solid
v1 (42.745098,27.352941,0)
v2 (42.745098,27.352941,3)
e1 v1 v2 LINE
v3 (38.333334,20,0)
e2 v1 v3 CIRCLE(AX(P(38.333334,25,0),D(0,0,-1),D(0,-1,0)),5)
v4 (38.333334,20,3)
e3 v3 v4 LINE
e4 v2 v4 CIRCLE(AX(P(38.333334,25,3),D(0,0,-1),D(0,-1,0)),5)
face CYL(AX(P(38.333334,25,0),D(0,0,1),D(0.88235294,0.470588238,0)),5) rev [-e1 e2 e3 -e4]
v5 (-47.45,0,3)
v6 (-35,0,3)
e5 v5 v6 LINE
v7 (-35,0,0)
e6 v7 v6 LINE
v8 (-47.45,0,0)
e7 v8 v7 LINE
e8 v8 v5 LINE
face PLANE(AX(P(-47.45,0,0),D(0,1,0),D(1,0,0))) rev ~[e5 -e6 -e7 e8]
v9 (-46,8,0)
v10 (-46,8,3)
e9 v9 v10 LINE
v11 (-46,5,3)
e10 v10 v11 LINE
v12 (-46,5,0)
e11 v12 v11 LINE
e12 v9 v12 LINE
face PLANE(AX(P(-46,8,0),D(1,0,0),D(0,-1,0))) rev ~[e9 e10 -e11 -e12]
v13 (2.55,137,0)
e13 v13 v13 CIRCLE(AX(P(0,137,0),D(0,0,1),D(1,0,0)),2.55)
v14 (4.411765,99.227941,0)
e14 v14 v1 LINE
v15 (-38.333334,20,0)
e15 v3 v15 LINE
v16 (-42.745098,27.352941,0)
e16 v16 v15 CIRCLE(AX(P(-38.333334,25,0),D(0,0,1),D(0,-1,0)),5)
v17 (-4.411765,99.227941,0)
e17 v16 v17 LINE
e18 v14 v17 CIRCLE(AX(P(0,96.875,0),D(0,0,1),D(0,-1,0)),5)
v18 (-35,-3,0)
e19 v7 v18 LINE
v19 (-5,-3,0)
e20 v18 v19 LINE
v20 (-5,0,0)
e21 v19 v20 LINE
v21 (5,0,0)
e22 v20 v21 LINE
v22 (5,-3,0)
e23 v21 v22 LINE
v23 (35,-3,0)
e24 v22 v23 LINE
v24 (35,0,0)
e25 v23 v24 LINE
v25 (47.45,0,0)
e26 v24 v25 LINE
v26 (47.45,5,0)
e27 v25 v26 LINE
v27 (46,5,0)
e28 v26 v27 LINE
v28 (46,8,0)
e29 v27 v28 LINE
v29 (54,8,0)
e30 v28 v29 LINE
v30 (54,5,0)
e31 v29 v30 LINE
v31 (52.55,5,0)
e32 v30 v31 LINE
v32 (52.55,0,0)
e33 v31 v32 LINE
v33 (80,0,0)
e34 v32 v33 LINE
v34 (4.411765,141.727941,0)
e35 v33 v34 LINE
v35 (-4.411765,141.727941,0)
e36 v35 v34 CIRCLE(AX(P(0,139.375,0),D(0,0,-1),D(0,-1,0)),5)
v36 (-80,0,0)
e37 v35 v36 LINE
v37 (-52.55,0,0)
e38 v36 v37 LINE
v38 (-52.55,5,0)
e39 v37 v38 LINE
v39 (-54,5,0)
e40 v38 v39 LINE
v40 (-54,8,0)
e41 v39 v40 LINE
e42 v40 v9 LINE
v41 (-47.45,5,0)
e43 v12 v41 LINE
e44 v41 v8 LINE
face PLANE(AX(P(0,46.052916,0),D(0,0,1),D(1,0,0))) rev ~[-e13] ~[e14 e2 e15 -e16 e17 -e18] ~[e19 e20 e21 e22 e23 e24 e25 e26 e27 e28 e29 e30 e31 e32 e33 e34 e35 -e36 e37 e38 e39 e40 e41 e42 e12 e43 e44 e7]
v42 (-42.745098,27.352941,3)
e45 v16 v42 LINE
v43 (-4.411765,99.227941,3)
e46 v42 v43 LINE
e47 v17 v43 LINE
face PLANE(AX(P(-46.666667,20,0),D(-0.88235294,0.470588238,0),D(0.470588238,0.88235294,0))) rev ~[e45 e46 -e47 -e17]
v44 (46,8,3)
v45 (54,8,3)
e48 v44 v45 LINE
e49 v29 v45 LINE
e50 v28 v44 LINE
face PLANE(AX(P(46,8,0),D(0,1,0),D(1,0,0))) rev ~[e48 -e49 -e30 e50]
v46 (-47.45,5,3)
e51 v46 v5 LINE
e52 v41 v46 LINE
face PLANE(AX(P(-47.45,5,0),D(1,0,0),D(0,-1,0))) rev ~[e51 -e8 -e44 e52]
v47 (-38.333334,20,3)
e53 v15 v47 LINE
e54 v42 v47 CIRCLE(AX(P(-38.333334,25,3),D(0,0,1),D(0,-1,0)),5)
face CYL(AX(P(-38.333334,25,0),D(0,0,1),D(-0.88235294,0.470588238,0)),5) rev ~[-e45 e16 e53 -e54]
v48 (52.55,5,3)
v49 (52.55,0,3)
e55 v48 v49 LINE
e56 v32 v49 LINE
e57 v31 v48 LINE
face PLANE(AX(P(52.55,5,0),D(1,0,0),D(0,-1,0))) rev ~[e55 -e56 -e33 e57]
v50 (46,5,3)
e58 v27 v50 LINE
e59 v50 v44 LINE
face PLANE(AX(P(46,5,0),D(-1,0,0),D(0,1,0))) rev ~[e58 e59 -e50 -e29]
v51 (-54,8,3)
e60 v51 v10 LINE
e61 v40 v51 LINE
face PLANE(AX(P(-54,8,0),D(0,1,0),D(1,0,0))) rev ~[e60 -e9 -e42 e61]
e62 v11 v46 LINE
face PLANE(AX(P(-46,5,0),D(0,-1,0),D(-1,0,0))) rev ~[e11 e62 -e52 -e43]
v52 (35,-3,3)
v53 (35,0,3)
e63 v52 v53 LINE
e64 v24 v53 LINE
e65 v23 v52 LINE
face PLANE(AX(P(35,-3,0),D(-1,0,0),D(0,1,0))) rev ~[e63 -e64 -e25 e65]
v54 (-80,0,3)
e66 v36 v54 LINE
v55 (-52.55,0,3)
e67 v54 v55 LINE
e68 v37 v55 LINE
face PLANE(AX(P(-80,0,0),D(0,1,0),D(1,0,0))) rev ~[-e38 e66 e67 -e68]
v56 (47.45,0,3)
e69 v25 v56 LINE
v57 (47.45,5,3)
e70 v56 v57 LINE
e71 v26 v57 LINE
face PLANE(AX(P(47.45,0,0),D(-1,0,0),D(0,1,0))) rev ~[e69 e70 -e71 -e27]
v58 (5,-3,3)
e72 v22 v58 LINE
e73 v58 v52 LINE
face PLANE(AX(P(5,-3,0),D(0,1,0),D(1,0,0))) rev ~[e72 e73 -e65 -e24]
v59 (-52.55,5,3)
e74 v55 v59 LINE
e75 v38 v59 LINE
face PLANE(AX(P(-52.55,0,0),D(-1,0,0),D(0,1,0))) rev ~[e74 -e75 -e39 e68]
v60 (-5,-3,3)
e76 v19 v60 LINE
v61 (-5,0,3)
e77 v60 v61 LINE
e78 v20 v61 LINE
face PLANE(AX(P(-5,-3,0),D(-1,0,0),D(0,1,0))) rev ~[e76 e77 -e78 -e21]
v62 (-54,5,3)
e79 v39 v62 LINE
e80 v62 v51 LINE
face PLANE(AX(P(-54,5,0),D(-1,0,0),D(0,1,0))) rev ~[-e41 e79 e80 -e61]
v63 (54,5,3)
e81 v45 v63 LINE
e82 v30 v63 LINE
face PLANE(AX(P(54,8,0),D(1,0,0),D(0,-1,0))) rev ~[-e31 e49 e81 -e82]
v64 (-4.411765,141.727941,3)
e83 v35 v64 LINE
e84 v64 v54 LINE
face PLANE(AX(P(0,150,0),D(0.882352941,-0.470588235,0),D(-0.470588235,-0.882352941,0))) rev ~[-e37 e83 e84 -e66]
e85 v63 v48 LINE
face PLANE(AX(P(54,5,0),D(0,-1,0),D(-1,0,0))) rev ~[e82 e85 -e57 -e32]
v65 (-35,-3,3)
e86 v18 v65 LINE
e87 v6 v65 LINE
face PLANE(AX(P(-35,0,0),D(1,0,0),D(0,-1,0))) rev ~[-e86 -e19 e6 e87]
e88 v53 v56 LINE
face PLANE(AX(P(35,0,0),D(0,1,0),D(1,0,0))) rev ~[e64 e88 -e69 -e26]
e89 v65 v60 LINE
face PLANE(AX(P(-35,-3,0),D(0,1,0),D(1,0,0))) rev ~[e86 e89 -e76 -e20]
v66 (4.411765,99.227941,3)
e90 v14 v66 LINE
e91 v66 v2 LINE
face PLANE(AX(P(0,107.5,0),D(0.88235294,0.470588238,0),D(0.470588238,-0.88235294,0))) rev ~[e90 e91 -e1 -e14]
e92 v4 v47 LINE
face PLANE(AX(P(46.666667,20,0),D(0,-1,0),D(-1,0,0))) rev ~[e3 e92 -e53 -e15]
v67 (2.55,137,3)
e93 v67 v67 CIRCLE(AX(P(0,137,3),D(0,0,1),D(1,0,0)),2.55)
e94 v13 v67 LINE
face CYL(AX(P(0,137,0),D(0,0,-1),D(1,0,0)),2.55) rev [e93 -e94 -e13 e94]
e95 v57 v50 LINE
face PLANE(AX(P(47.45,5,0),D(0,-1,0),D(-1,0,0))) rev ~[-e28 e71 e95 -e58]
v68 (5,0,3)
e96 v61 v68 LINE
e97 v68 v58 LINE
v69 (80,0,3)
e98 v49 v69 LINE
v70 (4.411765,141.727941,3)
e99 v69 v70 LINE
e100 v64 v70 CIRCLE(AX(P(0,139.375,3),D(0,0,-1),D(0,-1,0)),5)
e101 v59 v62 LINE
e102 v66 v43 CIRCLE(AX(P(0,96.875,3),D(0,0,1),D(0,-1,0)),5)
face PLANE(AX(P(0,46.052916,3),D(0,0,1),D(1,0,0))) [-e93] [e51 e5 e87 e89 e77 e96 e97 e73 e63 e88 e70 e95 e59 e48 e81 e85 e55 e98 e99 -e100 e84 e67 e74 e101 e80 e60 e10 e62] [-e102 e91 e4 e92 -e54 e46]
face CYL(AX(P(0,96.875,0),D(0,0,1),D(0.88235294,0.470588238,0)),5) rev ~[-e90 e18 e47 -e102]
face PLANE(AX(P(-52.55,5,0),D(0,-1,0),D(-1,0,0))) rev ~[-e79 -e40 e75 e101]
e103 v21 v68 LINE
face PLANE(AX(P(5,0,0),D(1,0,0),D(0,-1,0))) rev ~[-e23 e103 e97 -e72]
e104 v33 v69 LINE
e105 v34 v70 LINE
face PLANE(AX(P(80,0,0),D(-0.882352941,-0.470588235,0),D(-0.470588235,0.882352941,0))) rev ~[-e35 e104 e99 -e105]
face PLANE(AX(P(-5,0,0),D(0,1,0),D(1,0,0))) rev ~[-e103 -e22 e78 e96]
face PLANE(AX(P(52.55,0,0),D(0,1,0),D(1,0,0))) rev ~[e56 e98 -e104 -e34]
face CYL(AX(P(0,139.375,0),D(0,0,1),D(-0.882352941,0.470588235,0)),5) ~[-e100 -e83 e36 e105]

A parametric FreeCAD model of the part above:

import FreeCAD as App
import Part
import Sketcher

V = App.Vector


def edges_at(feature, points):
    """Names of the edges that pass closest to the given points."""
    edges = feature.Shape.Edges
    near = lambda p: min(range(len(edges)), key=lambda i: edges[i].distToShape(Part.Vertex(*p))[0])
    return sorted({f"Edge{near(p) + 1}" for p in points})


def add_polygon(sketch, points):
    """Adds a closed chain of lines whose ends are joined by coincident constraints."""
    first, n = sketch.GeometryCount, len(points)
    for a, b in zip(points, points[1:] + points[:1]):
        sketch.addGeometry(Part.LineSegment(App.Vector(*a, 0), App.Vector(*b, 0)), False)
    for i in range(n):
        sketch.addConstraint(Sketcher.Constraint("Coincident", first + i, 2, first + (i + 1) % n, 1))

doc = App.newDocument("Part")
params = doc.addObject("Spreadsheet::Sheet", "Params")
for row, (alias, value) in enumerate([
    ("sketch1_diameter", "5.1 mm"),
    ("sketch1_width", "8 mm"),
    ("sketch1_width2", "30 mm"),
    ("sketch1_width3", "10 mm"),
    ("sketch1_height", "5 mm"),
    ("pad1_length", "3 mm"),
    ("fillet_radius", "5 mm"),
], start=1):
    params.set(f"A{row}", alias)
    params.set(f"B{row}", "=" + value)
    params.setAlias(f"B{row}", alias)

body = doc.addObject("PartDesign::Body", "Body")

# Sketch on XY plane
sketch1 = doc.addObject("Sketcher::SketchObject", "Sketch")
body.addObject(sketch1)
sketch1.AttachmentSupport = (doc.XY_Plane, [""])
sketch1.MapMode = "FlatFace"
add_polygon(sketch1, [(0, 150), (-80, 0), (-52.5, 0), (-52.5, 5), (-54, 5), (-54, 8), (-46, 8), (-46, 5), (-47.5, 5), (-47.5, 0), (-35, 0), (-35, -3), (-5, -3), (-5, 0), (5, 0), (5, -3), (35, -3), (35, 0), (47.5, 0), (47.5, 5), (46, 5), (46, 8), (54, 8), (54, 5), (52.5, 5), (52.5, 0), (80, 0)])  # lines 0-26
add_polygon(sketch1, [(0, 107.5), (46.7, 20), (-46.7, 20)])  # lines 27-29
sketch1.addGeometry(Part.Circle(V(0, 137, 0), V(0, 0, 1), 2.5), False)  # 30
sketch1.addConstraint([
    Sketcher.Constraint("Horizontal", 1),
    Sketcher.Constraint("Vertical", 2),
    Sketcher.Constraint("Horizontal", 3),
    Sketcher.Constraint("Vertical", 4),
    Sketcher.Constraint("Horizontal", 5),
    Sketcher.Constraint("Vertical", 6),
    Sketcher.Constraint("Horizontal", 7),
    Sketcher.Constraint("Vertical", 8),
    Sketcher.Constraint("Horizontal", 9),
    Sketcher.Constraint("Vertical", 10),
    Sketcher.Constraint("Horizontal", 11),
    Sketcher.Constraint("Vertical", 12),
    Sketcher.Constraint("Horizontal", 13),
    Sketcher.Constraint("Vertical", 14),
    Sketcher.Constraint("Horizontal", 15),
    Sketcher.Constraint("Vertical", 16),
    Sketcher.Constraint("Horizontal", 17),
    Sketcher.Constraint("Vertical", 18),
    Sketcher.Constraint("Horizontal", 19),
    Sketcher.Constraint("Vertical", 20),
    Sketcher.Constraint("Horizontal", 21),
    Sketcher.Constraint("Vertical", 22),
    Sketcher.Constraint("Horizontal", 23),
    Sketcher.Constraint("Vertical", 24),
    Sketcher.Constraint("Horizontal", 25),
    Sketcher.Constraint("Horizontal", 28),
    Sketcher.Constraint("Symmetric", 12, 2, 13, 2, -1, 1),
    Sketcher.Constraint("Symmetric", 9, 2, 16, 2, -1, 1),
    Sketcher.Constraint("Symmetric", 1, 2, 24, 2, -1, 1),
    Sketcher.Constraint("Symmetric", 8, 2, 17, 2, -2),
    Sketcher.Constraint("Symmetric", 6, 2, 19, 2, -2),
    Sketcher.Constraint("Symmetric", 4, 2, 21, 2, -2),
    Sketcher.Constraint("Symmetric", 0, 2, 25, 2, -2),
    Sketcher.Constraint("PointOnObject", 30, 3, -2),
    Sketcher.Constraint("PointOnObject", 26, 2, -2),
    Sketcher.Constraint("PointOnObject", 29, 2, -2),
    Sketcher.Constraint("Parallel", 26, 27),
    Sketcher.Constraint("Parallel", 0, 29),
    Sketcher.Constraint("Horizontal", 3, 2, 6, 2),
    Sketcher.Constraint("Horizontal", 11, 2, 14, 2),
    Sketcher.Constraint("Horizontal", 19, 2, 22, 2),
    Sketcher.Constraint("Equal", 3, 7),
    Sketcher.Constraint("Equal", 6, 10),
    Sketcher.Constraint("Diameter", 30, 5.1),
    Sketcher.Constraint("DistanceX", 5, 1, 5, 2, 8.0),
    Sketcher.Constraint("DistanceX", 11, 1, 11, 2, 30.0),
    Sketcher.Constraint("DistanceX", 13, 1, 13, 2, 10.0),
    Sketcher.Constraint("DistanceY", 2, 1, 2, 2, 5.0),
    Sketcher.Constraint("DistanceY", 4, 1, 4, 2, 3.0),
    Sketcher.Constraint("Distance", 0, 170.0),
    Sketcher.Constraint("DistanceY", -1, 1, 30, 3, 137.0),
    Sketcher.Constraint("DistanceX", 0, 2, -1, 1, 80.0),
    Sketcher.Constraint("DistanceX", 3, 2, -1, 1, 54.0),
    Sketcher.Constraint("DistanceY", -1, 1, 27, 2, 20.0),
    Sketcher.Constraint("DistanceX", 1, 1, 1, 2, 27.45),
    Sketcher.Constraint("DistanceY", -1, 1, 29, 2, 107.5),
])
sketch1.setExpression("Constraints[73]", "Params.sketch1_diameter")
sketch1.setExpression("Constraints[74]", "Params.sketch1_width")
sketch1.setExpression("Constraints[75]", "Params.sketch1_width2")
sketch1.setExpression("Constraints[76]", "Params.sketch1_width3")
sketch1.setExpression("Constraints[77]", "Params.sketch1_height")
pad1 = doc.addObject("PartDesign::Pad", "Pad")
body.addObject(pad1)
pad1.Profile = sketch1
pad1.setExpression("Length", "Params.pad1_length")
doc.recompute()

fillet = doc.addObject("PartDesign::Fillet", "Fillet")
body.addObject(fillet)
fillet.Base = (pad1, edges_at(pad1, [
    (0, 150, 1.5),
    (0, 107.5, 1.5),
    (46.667, 20, 1.5),
    (-46.667, 20, 1.5),
]))
fillet.setExpression("Radius", "Params.fillet_radius")

doc.recompute()
